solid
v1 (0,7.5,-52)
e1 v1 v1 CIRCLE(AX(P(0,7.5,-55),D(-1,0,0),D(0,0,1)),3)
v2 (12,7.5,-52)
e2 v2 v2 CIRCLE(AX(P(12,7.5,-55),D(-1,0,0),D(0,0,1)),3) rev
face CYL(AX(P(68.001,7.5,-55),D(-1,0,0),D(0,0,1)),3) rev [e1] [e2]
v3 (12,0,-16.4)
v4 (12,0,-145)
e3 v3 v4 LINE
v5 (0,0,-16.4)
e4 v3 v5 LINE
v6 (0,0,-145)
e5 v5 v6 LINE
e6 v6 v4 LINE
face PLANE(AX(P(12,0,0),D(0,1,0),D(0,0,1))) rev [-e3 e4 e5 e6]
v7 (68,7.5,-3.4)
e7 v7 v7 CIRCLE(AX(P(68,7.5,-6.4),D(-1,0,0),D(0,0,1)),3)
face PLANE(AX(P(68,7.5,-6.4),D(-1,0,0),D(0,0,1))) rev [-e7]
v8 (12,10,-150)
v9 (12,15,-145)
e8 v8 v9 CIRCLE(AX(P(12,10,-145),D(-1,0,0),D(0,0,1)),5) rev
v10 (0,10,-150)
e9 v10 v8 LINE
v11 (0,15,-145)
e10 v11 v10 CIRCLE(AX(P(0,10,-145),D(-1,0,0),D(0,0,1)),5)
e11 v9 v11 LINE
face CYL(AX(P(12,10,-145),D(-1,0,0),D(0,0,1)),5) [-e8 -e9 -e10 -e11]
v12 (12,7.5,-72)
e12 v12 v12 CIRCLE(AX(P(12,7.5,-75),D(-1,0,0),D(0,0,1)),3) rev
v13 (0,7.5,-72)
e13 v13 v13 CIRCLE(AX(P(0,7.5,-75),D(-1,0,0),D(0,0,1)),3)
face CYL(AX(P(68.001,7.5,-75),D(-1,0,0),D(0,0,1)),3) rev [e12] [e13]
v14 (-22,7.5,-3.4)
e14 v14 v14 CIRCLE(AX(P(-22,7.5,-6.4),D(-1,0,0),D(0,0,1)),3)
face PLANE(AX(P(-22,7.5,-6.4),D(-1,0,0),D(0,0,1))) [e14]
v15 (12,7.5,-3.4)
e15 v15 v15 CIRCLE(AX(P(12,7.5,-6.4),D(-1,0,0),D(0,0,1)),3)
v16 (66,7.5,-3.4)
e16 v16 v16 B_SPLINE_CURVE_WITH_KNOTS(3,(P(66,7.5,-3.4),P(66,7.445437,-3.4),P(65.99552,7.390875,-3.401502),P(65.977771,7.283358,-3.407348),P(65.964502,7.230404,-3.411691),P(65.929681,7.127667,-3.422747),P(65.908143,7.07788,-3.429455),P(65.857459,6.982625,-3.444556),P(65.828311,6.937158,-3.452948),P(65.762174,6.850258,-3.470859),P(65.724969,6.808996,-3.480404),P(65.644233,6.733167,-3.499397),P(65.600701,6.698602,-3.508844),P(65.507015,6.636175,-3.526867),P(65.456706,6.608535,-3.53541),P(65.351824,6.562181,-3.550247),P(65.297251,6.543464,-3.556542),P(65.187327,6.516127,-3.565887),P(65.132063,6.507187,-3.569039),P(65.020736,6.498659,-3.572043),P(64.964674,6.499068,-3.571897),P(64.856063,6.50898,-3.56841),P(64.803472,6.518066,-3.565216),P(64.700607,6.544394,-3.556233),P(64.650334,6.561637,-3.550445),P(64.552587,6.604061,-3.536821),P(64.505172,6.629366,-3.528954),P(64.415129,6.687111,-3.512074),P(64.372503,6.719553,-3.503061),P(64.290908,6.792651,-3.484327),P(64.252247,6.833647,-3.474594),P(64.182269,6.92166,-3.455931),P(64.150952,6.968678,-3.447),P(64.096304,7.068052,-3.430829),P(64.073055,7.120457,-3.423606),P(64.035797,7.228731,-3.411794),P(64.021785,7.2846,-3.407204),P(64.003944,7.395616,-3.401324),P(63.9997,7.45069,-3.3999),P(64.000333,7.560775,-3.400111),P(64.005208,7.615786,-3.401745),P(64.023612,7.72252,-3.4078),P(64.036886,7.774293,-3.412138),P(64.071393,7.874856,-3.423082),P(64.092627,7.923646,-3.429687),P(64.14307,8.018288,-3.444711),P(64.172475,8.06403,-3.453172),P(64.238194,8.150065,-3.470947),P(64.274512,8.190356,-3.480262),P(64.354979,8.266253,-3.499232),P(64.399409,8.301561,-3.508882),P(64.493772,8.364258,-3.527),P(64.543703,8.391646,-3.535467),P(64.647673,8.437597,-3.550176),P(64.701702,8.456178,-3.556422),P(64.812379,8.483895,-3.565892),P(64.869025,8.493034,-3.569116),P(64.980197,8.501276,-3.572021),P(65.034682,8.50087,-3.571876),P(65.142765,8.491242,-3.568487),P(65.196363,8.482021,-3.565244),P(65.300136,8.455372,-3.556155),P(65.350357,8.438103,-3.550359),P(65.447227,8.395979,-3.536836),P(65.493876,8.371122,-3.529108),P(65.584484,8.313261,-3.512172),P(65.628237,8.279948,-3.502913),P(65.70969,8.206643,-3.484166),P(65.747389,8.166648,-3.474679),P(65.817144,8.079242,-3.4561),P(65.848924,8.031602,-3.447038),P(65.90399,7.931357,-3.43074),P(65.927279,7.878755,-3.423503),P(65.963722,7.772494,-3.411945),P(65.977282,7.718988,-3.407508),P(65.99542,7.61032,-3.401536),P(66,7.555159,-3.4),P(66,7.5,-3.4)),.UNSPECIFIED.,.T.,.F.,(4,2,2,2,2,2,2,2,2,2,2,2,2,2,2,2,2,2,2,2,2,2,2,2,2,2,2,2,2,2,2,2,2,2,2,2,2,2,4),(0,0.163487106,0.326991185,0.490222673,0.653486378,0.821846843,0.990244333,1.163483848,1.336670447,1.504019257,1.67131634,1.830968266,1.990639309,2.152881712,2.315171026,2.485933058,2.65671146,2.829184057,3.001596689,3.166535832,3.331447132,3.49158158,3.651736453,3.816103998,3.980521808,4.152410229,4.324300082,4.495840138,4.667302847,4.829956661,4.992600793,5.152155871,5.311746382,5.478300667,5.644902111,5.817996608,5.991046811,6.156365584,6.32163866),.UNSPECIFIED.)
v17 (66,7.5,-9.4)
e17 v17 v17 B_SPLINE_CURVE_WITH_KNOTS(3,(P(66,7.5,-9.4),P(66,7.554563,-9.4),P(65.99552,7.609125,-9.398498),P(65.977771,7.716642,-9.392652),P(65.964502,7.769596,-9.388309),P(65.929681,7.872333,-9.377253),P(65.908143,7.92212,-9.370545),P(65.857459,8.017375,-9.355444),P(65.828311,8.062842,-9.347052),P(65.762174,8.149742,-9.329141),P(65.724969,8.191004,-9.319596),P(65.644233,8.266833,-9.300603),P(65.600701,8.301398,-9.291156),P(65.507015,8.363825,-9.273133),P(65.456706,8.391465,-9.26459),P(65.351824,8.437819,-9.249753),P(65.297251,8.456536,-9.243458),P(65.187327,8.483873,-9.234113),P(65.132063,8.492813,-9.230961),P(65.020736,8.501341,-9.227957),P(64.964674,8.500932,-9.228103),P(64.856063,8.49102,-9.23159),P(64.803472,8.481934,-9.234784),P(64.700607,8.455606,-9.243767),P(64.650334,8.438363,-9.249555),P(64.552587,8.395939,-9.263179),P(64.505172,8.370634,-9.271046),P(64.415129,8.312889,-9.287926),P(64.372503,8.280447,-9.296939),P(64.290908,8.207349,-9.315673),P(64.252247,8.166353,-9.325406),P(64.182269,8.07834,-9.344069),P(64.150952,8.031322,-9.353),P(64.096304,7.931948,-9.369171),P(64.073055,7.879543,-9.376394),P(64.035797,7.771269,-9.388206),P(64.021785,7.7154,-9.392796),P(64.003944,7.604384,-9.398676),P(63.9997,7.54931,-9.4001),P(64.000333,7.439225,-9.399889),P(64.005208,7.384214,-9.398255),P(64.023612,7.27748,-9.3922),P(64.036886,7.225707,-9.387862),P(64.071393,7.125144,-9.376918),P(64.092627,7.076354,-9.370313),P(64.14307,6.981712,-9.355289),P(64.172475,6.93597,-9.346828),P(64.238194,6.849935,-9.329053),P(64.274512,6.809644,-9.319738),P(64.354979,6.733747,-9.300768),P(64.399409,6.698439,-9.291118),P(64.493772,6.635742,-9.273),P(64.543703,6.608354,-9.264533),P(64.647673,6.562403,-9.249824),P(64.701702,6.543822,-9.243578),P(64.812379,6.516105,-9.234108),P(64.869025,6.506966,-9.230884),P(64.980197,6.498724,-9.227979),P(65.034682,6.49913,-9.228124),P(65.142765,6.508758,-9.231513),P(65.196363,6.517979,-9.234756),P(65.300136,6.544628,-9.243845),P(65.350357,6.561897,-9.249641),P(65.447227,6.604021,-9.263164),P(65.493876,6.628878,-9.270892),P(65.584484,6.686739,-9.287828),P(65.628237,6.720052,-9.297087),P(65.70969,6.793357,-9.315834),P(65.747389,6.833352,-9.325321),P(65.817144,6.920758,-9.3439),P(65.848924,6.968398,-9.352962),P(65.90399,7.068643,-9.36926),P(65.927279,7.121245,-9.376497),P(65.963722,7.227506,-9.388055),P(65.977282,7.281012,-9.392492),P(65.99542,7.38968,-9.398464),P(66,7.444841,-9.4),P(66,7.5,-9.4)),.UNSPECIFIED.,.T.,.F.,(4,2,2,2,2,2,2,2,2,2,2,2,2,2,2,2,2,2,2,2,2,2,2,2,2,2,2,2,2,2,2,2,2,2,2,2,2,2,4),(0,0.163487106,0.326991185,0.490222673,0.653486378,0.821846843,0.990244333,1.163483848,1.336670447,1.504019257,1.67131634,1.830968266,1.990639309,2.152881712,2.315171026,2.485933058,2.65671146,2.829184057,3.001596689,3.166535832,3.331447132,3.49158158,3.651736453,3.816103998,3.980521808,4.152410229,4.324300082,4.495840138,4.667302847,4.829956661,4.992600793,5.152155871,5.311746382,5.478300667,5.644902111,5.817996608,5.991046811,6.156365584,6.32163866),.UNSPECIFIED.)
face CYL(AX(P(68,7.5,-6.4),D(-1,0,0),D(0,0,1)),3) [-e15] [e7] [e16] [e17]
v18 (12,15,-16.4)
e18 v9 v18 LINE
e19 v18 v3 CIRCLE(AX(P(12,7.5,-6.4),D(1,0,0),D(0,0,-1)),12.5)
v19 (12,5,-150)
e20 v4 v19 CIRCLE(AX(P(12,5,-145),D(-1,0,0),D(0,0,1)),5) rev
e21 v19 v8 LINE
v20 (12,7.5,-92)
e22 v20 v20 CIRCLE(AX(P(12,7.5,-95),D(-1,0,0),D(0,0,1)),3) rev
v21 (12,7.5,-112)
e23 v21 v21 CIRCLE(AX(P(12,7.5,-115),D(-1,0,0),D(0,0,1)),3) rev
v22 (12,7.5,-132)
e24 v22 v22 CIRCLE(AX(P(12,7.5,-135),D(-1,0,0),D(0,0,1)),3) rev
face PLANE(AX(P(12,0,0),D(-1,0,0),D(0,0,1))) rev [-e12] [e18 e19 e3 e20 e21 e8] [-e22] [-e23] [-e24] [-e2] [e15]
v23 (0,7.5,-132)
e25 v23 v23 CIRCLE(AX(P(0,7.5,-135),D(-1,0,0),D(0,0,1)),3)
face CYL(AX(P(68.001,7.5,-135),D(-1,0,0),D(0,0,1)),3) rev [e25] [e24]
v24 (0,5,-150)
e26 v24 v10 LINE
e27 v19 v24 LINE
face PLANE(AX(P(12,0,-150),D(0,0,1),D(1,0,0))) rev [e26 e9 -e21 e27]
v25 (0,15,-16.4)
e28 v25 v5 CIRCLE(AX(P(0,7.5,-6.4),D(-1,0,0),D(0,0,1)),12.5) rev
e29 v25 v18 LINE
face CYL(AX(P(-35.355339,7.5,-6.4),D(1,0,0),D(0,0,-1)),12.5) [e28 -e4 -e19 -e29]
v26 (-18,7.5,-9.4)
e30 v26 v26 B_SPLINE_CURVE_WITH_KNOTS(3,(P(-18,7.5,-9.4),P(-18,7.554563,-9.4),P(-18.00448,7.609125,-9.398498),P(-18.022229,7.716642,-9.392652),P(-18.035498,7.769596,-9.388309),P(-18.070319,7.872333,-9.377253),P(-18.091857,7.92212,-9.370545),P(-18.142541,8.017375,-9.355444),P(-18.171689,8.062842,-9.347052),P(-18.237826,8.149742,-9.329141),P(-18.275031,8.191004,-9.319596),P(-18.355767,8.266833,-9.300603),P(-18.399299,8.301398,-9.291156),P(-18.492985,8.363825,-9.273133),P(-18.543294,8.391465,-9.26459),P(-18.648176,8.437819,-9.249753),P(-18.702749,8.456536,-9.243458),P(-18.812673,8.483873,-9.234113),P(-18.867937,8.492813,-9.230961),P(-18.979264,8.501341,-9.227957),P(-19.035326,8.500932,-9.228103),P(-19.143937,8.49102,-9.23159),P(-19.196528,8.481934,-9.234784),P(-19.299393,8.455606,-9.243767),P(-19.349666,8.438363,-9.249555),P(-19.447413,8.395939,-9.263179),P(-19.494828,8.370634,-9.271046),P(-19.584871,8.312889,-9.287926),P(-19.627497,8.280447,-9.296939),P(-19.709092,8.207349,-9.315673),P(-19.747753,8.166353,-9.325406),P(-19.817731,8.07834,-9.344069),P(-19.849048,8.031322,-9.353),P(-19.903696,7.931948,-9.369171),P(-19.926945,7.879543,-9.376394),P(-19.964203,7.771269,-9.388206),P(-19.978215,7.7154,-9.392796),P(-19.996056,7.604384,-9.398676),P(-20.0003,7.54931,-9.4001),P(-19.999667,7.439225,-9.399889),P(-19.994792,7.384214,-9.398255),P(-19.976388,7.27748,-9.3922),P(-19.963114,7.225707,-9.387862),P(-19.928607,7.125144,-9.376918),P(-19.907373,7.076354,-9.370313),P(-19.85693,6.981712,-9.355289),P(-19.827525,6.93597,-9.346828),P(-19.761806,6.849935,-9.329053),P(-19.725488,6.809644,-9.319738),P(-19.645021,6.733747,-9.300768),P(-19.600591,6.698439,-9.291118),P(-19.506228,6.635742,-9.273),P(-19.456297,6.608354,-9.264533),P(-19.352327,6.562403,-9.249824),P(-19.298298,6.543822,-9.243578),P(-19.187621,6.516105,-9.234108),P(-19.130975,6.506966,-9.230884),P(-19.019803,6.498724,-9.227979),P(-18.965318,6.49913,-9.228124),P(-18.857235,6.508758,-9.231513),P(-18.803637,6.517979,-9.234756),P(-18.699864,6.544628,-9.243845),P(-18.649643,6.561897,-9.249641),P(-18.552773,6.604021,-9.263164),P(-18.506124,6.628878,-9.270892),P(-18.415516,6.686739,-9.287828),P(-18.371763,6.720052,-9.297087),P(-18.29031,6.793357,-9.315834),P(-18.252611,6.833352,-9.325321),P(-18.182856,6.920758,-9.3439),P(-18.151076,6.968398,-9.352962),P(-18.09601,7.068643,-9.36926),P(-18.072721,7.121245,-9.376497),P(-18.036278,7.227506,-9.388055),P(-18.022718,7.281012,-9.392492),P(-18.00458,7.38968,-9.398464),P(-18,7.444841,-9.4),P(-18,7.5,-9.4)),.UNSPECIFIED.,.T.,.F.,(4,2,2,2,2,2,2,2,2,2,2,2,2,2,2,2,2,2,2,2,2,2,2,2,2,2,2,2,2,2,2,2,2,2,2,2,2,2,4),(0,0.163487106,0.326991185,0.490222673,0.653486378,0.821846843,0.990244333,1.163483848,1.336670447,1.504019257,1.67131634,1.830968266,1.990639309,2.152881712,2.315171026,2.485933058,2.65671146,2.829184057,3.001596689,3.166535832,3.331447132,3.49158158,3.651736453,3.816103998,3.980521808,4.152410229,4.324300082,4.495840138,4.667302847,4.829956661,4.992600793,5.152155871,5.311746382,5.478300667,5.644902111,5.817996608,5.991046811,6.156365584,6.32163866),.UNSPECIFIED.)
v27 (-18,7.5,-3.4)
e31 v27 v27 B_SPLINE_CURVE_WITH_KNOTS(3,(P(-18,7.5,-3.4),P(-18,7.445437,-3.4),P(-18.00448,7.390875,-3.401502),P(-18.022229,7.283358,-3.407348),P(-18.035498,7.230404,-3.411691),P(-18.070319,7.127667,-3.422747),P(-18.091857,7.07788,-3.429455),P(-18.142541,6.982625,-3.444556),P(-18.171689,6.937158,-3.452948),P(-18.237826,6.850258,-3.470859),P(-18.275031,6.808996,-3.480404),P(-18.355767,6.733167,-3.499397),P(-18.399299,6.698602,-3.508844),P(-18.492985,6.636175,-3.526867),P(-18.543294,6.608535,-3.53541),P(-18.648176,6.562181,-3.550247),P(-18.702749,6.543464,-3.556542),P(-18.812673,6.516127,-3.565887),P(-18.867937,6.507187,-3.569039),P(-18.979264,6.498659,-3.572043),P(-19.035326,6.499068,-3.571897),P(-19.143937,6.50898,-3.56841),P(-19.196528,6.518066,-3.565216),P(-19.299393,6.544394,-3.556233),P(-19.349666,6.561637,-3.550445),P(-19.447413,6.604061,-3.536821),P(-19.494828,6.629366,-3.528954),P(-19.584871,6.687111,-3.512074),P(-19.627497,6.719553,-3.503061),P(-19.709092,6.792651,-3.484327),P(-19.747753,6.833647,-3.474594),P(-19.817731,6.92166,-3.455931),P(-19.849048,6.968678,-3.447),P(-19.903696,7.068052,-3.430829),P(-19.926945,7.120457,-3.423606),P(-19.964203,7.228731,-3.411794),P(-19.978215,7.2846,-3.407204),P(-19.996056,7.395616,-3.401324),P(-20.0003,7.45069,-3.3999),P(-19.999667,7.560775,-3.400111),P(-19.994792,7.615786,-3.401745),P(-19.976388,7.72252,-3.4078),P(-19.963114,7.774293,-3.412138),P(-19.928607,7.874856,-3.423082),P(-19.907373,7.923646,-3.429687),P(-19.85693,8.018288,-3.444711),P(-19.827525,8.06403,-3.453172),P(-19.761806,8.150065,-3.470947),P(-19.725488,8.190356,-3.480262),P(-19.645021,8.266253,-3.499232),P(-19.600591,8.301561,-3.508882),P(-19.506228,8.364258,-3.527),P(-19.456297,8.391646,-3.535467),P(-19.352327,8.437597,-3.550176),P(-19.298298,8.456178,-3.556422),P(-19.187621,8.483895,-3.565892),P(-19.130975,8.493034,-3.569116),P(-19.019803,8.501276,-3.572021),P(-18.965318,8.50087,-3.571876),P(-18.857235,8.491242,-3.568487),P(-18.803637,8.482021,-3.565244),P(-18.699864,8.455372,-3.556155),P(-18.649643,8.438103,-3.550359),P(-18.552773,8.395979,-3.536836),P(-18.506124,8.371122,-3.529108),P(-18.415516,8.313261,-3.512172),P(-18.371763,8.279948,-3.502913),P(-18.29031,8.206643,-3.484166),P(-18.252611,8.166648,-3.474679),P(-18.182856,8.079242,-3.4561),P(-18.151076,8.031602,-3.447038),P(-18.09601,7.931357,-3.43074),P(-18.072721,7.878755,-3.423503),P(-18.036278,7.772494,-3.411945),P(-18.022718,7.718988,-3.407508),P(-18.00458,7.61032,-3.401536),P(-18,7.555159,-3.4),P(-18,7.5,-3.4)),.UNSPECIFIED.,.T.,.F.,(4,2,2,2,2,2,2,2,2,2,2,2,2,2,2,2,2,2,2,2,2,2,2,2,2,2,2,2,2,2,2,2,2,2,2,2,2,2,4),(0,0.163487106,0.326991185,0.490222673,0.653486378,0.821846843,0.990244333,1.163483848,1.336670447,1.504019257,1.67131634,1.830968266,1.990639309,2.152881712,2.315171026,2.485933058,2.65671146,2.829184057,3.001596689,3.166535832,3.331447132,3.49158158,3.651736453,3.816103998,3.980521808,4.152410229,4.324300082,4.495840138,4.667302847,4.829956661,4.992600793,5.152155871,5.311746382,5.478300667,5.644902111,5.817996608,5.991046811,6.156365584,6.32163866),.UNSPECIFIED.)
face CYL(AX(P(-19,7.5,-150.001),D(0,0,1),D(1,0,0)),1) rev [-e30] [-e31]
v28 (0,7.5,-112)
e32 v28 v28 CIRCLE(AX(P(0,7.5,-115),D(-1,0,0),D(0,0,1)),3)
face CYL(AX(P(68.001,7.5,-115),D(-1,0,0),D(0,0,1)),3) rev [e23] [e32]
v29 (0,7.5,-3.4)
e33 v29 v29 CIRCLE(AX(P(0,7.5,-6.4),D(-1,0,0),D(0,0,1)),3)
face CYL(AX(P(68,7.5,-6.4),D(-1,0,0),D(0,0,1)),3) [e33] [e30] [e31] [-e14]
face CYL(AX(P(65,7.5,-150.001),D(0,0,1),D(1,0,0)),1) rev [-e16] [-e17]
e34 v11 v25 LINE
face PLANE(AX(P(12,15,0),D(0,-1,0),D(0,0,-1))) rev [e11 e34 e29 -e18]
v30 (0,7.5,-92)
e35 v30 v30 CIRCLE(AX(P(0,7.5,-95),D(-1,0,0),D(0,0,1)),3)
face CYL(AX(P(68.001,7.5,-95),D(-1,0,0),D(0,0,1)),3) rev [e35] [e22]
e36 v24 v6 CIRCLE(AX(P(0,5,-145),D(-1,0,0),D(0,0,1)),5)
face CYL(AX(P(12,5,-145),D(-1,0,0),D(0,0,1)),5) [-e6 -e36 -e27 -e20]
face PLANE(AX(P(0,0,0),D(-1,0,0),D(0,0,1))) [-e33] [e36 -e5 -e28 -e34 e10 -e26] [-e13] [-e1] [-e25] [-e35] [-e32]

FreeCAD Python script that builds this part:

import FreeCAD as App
import Part
import Sketcher
from FreeCAD import Vector
Q = App.Units.Quantity


def edges_at(feature, points):
    """Names of the edges that pass closest to the given points."""
    edges = feature.Shape.Edges
    near = lambda p: min(range(len(edges)), key=lambda i: edges[i].distToShape(Part.Vertex(*p))[0])
    return sorted({f"Edge{near(p) + 1}" for p in points})

doc = App.newDocument("Part")
body = doc.addObject("PartDesign::Body", "Body")

sketch1 = body.newObject("Sketcher::SketchObject", "Sketch")
sketch1.AttachmentSupport = (doc.getObject("YZ_Plane"), [""])
sketch1.MapMode = "FlatFace"
sketch1.addGeometry([
    Part.LineSegment(Vector(15, 0, 0), Vector(0, 0, 0)),
    Part.LineSegment(Vector(0, 0, 0), Vector(0, -150, 0)),
    Part.LineSegment(Vector(0, -150, 0), Vector(15, -150, 0)),
    Part.LineSegment(Vector(15, -150, 0), Vector(15, 0, 0)),
], False)
sketch1.addConstraint([
    Sketcher.Constraint("Coincident", 0, 2, 1, 1),
    Sketcher.Constraint("Coincident", 1, 2, 2, 1),
    Sketcher.Constraint("Coincident", 2, 2, 3, 1),
    Sketcher.Constraint("Coincident", 3, 2, 0, 1),
    Sketcher.Constraint("Horizontal", 0),
    Sketcher.Constraint("Vertical", 1),
    Sketcher.Constraint("Horizontal", 2),
    Sketcher.Constraint("Vertical", 3),
    Sketcher.Constraint("Coincident", 0, 2, -1, 1),
    Sketcher.Constraint("DistanceX", 0, 2, 0, 1, Q("15 mm")),
    Sketcher.Constraint("DistanceY", 1, 2, 1, 1, Q("150 mm")),
])
pad1 = body.newObject("PartDesign::Pad", "Pad")
pad1.Profile = sketch1
pad1.Length = 12
doc.recompute()

fillet = body.newObject("PartDesign::Fillet", "Fillet")
fillet.Base = (pad1, edges_at(pad1, [
    (6, 15, 0),
    (6, 15, -150),
    (6, 0, -150),
    (6, 0, 0),
]))
fillet.Radius = 5

sketch2 = body.newObject("Sketcher::SketchObject", "Sketch001")
sketch2.AttachmentSupport = (doc.getObject("YZ_Plane"), [""])
sketch2.MapMode = "FlatFace"
sketch2.AttachmentOffset = App.Placement(Vector(0, 0, 12), App.Rotation())
sketch2.addGeometry(Part.Circle(Vector(8, -6, 0), Vector(0, 0, 1), 12), False)
sketch2.addConstraint([
    Sketcher.Constraint("Diameter", 0, Q("25 mm")),
    Sketcher.Constraint("DistanceX", -1, 1, 0, 3, Q("7.5 mm")),
    Sketcher.Constraint("DistanceY", 0, 3, -1, 1, Q("6.4 mm")),
])
pad2 = body.newObject("PartDesign::Pad", "Pad001")
pad2.Profile = sketch2
pad2.Length = 12
pad2.Reversed = True

sketch3 = body.newObject("Sketcher::SketchObject", "Sketch002")
sketch3.AttachmentSupport = (doc.getObject("YZ_Plane"), [""])
sketch3.MapMode = "FlatFace"
sketch3.addGeometry(Part.Circle(Vector(7.5, -6.4, 0), Vector(0, 0, 1), 3), False)
sketch3.addConstraint([
    Sketcher.Constraint("Diameter", 0, Q("6 mm")),
    Sketcher.Constraint("DistanceX", -1, 1, 0, 3, Q("7.5 mm")),
    Sketcher.Constraint("DistanceY", 0, 3, -1, 1, Q("6.4 mm")),
])
pad3 = body.newObject("PartDesign::Pad", "Pad002")
pad3.Profile = sketch3
pad3.Type = "TwoLengths"
pad3.Length = 22
pad3.Length2 = 68
pad3.Reversed = True

sketch4 = body.newObject("Sketcher::SketchObject", "Sketch003")
sketch4.AttachmentSupport = (doc.getObject("XY_Plane"), [""])
sketch4.MapMode = "FlatFace"
sketch4.addGeometry(Part.Circle(Vector(-19, 7.5, 0), Vector(0, 0, 1), 1), False)
sketch4.addConstraint([
    Sketcher.Constraint("Diameter", 0, Q("2 mm")),
    Sketcher.Constraint("DistanceX", 0, 3, -1, 1, Q("19 mm")),
    Sketcher.Constraint("DistanceY", -1, 1, 0, 3, Q("7.5 mm")),
])
pocket1 = body.newObject("PartDesign::Pocket", "Pocket")
pocket1.Profile = sketch4
pocket1.Length = 9.4

sketch5 = body.newObject("Sketcher::SketchObject", "Sketch004")
sketch5.AttachmentSupport = (doc.getObject("XY_Plane"), [""])
sketch5.MapMode = "FlatFace"
sketch5.addGeometry(Part.Circle(Vector(65, 7.5, 0), Vector(0, 0, 1), 1), False)
sketch5.addConstraint([
    Sketcher.Constraint("Diameter", 0, Q("2 mm")),
    Sketcher.Constraint("DistanceX", -1, 1, 0, 3, Q("65 mm")),
    Sketcher.Constraint("DistanceY", -1, 1, 0, 3, Q("7.5 mm")),
])
pocket2 = body.newObject("PartDesign::Pocket", "Pocket001")
pocket2.Profile = sketch5
pocket2.Length = 9.4

sketch6 = body.newObject("Sketcher::SketchObject", "Sketch005")
sketch6.AttachmentSupport = (doc.getObject("YZ_Plane"), [""])
sketch6.MapMode = "FlatFace"
sketch6.addGeometry(Part.Circle(Vector(7.5, -135, 0), Vector(0, 0, 1), 3), False)
sketch6.addConstraint([
    Sketcher.Constraint("Diameter", 0, Q("6 mm")),
    Sketcher.Constraint("DistanceY", 0, 3, -1, 1, Q("135 mm")),
    Sketcher.Constraint("DistanceX", -1, 1, 0, 3, Q("7.5 mm")),
])
pocket3 = body.newObject("PartDesign::Pocket", "Pocket002")
pocket3.Profile = sketch6
pocket3.Type = "UpToFirst"
pocket3.Reversed = True

sketch7 = body.newObject("Sketcher::SketchObject", "Sketch006")
sketch7.AttachmentSupport = (doc.getObject("YZ_Plane"), [""])
sketch7.MapMode = "FlatFace"
sketch7.addGeometry(Part.Circle(Vector(7.5, -115, 0), Vector(0, 0, 1), 3), False)
sketch7.addConstraint([
    Sketcher.Constraint("Diameter", 0, Q("6 mm")),
    Sketcher.Constraint("DistanceY", 0, 3, -1, 1, Q("115 mm")),
    Sketcher.Constraint("DistanceX", -1, 1, 0, 3, Q("7.5 mm")),
])
pocket4 = body.newObject("PartDesign::Pocket", "Pocket003")
pocket4.Profile = sketch7
pocket4.Type = "UpToFirst"
pocket4.Reversed = True

sketch8 = body.newObject("Sketcher::SketchObject", "Sketch007")
sketch8.AttachmentSupport = (doc.getObject("YZ_Plane"), [""])
sketch8.MapMode = "FlatFace"
sketch8.addGeometry(Part.Circle(Vector(7.5, -95, 0), Vector(0, 0, 1), 3), False)
sketch8.addConstraint([
    Sketcher.Constraint("Diameter", 0, Q("6 mm")),
    Sketcher.Constraint("DistanceY", 0, 3, -1, 1, Q("95 mm")),
    Sketcher.Constraint("DistanceX", -1, 1, 0, 3, Q("7.5 mm")),
])
pocket5 = body.newObject("PartDesign::Pocket", "Pocket004")
pocket5.Profile = sketch8
pocket5.Type = "UpToFirst"
pocket5.Reversed = True

sketch9 = body.newObject("Sketcher::SketchObject", "Sketch008")
sketch9.AttachmentSupport = (doc.getObject("YZ_Plane"), [""])
sketch9.MapMode = "FlatFace"
sketch9.addGeometry(Part.Circle(Vector(7.5, -75, 0), Vector(0, 0, 1), 3), False)
sketch9.addConstraint([
    Sketcher.Constraint("Diameter", 0, Q("6 mm")),
    Sketcher.Constraint("DistanceY", 0, 3, -1, 1, Q("75 mm")),
    Sketcher.Constraint("DistanceX", -1, 1, 0, 3, Q("7.5 mm")),
])
pocket6 = body.newObject("PartDesign::Pocket", "Pocket005")
pocket6.Profile = sketch9
pocket6.Type = "UpToFirst"
pocket6.Reversed = True

sketch10 = body.newObject("Sketcher::SketchObject", "Sketch009")
sketch10.AttachmentSupport = (doc.getObject("YZ_Plane"), [""])
sketch10.MapMode = "FlatFace"
sketch10.addGeometry(Part.Circle(Vector(7.5, -55, 0), Vector(0, 0, 1), 3), False)
sketch10.addConstraint([
    Sketcher.Constraint("Diameter", 0, Q("6 mm")),
    Sketcher.Constraint("DistanceY", 0, 3, -1, 1, Q("55 mm")),
    Sketcher.Constraint("DistanceX", -1, 1, 0, 3, Q("7.5 mm")),
])
pocket7 = body.newObject("PartDesign::Pocket", "Pocket006")
pocket7.Profile = sketch10
pocket7.Type = "UpToFirst"
pocket7.Reversed = True

doc.recompute()
